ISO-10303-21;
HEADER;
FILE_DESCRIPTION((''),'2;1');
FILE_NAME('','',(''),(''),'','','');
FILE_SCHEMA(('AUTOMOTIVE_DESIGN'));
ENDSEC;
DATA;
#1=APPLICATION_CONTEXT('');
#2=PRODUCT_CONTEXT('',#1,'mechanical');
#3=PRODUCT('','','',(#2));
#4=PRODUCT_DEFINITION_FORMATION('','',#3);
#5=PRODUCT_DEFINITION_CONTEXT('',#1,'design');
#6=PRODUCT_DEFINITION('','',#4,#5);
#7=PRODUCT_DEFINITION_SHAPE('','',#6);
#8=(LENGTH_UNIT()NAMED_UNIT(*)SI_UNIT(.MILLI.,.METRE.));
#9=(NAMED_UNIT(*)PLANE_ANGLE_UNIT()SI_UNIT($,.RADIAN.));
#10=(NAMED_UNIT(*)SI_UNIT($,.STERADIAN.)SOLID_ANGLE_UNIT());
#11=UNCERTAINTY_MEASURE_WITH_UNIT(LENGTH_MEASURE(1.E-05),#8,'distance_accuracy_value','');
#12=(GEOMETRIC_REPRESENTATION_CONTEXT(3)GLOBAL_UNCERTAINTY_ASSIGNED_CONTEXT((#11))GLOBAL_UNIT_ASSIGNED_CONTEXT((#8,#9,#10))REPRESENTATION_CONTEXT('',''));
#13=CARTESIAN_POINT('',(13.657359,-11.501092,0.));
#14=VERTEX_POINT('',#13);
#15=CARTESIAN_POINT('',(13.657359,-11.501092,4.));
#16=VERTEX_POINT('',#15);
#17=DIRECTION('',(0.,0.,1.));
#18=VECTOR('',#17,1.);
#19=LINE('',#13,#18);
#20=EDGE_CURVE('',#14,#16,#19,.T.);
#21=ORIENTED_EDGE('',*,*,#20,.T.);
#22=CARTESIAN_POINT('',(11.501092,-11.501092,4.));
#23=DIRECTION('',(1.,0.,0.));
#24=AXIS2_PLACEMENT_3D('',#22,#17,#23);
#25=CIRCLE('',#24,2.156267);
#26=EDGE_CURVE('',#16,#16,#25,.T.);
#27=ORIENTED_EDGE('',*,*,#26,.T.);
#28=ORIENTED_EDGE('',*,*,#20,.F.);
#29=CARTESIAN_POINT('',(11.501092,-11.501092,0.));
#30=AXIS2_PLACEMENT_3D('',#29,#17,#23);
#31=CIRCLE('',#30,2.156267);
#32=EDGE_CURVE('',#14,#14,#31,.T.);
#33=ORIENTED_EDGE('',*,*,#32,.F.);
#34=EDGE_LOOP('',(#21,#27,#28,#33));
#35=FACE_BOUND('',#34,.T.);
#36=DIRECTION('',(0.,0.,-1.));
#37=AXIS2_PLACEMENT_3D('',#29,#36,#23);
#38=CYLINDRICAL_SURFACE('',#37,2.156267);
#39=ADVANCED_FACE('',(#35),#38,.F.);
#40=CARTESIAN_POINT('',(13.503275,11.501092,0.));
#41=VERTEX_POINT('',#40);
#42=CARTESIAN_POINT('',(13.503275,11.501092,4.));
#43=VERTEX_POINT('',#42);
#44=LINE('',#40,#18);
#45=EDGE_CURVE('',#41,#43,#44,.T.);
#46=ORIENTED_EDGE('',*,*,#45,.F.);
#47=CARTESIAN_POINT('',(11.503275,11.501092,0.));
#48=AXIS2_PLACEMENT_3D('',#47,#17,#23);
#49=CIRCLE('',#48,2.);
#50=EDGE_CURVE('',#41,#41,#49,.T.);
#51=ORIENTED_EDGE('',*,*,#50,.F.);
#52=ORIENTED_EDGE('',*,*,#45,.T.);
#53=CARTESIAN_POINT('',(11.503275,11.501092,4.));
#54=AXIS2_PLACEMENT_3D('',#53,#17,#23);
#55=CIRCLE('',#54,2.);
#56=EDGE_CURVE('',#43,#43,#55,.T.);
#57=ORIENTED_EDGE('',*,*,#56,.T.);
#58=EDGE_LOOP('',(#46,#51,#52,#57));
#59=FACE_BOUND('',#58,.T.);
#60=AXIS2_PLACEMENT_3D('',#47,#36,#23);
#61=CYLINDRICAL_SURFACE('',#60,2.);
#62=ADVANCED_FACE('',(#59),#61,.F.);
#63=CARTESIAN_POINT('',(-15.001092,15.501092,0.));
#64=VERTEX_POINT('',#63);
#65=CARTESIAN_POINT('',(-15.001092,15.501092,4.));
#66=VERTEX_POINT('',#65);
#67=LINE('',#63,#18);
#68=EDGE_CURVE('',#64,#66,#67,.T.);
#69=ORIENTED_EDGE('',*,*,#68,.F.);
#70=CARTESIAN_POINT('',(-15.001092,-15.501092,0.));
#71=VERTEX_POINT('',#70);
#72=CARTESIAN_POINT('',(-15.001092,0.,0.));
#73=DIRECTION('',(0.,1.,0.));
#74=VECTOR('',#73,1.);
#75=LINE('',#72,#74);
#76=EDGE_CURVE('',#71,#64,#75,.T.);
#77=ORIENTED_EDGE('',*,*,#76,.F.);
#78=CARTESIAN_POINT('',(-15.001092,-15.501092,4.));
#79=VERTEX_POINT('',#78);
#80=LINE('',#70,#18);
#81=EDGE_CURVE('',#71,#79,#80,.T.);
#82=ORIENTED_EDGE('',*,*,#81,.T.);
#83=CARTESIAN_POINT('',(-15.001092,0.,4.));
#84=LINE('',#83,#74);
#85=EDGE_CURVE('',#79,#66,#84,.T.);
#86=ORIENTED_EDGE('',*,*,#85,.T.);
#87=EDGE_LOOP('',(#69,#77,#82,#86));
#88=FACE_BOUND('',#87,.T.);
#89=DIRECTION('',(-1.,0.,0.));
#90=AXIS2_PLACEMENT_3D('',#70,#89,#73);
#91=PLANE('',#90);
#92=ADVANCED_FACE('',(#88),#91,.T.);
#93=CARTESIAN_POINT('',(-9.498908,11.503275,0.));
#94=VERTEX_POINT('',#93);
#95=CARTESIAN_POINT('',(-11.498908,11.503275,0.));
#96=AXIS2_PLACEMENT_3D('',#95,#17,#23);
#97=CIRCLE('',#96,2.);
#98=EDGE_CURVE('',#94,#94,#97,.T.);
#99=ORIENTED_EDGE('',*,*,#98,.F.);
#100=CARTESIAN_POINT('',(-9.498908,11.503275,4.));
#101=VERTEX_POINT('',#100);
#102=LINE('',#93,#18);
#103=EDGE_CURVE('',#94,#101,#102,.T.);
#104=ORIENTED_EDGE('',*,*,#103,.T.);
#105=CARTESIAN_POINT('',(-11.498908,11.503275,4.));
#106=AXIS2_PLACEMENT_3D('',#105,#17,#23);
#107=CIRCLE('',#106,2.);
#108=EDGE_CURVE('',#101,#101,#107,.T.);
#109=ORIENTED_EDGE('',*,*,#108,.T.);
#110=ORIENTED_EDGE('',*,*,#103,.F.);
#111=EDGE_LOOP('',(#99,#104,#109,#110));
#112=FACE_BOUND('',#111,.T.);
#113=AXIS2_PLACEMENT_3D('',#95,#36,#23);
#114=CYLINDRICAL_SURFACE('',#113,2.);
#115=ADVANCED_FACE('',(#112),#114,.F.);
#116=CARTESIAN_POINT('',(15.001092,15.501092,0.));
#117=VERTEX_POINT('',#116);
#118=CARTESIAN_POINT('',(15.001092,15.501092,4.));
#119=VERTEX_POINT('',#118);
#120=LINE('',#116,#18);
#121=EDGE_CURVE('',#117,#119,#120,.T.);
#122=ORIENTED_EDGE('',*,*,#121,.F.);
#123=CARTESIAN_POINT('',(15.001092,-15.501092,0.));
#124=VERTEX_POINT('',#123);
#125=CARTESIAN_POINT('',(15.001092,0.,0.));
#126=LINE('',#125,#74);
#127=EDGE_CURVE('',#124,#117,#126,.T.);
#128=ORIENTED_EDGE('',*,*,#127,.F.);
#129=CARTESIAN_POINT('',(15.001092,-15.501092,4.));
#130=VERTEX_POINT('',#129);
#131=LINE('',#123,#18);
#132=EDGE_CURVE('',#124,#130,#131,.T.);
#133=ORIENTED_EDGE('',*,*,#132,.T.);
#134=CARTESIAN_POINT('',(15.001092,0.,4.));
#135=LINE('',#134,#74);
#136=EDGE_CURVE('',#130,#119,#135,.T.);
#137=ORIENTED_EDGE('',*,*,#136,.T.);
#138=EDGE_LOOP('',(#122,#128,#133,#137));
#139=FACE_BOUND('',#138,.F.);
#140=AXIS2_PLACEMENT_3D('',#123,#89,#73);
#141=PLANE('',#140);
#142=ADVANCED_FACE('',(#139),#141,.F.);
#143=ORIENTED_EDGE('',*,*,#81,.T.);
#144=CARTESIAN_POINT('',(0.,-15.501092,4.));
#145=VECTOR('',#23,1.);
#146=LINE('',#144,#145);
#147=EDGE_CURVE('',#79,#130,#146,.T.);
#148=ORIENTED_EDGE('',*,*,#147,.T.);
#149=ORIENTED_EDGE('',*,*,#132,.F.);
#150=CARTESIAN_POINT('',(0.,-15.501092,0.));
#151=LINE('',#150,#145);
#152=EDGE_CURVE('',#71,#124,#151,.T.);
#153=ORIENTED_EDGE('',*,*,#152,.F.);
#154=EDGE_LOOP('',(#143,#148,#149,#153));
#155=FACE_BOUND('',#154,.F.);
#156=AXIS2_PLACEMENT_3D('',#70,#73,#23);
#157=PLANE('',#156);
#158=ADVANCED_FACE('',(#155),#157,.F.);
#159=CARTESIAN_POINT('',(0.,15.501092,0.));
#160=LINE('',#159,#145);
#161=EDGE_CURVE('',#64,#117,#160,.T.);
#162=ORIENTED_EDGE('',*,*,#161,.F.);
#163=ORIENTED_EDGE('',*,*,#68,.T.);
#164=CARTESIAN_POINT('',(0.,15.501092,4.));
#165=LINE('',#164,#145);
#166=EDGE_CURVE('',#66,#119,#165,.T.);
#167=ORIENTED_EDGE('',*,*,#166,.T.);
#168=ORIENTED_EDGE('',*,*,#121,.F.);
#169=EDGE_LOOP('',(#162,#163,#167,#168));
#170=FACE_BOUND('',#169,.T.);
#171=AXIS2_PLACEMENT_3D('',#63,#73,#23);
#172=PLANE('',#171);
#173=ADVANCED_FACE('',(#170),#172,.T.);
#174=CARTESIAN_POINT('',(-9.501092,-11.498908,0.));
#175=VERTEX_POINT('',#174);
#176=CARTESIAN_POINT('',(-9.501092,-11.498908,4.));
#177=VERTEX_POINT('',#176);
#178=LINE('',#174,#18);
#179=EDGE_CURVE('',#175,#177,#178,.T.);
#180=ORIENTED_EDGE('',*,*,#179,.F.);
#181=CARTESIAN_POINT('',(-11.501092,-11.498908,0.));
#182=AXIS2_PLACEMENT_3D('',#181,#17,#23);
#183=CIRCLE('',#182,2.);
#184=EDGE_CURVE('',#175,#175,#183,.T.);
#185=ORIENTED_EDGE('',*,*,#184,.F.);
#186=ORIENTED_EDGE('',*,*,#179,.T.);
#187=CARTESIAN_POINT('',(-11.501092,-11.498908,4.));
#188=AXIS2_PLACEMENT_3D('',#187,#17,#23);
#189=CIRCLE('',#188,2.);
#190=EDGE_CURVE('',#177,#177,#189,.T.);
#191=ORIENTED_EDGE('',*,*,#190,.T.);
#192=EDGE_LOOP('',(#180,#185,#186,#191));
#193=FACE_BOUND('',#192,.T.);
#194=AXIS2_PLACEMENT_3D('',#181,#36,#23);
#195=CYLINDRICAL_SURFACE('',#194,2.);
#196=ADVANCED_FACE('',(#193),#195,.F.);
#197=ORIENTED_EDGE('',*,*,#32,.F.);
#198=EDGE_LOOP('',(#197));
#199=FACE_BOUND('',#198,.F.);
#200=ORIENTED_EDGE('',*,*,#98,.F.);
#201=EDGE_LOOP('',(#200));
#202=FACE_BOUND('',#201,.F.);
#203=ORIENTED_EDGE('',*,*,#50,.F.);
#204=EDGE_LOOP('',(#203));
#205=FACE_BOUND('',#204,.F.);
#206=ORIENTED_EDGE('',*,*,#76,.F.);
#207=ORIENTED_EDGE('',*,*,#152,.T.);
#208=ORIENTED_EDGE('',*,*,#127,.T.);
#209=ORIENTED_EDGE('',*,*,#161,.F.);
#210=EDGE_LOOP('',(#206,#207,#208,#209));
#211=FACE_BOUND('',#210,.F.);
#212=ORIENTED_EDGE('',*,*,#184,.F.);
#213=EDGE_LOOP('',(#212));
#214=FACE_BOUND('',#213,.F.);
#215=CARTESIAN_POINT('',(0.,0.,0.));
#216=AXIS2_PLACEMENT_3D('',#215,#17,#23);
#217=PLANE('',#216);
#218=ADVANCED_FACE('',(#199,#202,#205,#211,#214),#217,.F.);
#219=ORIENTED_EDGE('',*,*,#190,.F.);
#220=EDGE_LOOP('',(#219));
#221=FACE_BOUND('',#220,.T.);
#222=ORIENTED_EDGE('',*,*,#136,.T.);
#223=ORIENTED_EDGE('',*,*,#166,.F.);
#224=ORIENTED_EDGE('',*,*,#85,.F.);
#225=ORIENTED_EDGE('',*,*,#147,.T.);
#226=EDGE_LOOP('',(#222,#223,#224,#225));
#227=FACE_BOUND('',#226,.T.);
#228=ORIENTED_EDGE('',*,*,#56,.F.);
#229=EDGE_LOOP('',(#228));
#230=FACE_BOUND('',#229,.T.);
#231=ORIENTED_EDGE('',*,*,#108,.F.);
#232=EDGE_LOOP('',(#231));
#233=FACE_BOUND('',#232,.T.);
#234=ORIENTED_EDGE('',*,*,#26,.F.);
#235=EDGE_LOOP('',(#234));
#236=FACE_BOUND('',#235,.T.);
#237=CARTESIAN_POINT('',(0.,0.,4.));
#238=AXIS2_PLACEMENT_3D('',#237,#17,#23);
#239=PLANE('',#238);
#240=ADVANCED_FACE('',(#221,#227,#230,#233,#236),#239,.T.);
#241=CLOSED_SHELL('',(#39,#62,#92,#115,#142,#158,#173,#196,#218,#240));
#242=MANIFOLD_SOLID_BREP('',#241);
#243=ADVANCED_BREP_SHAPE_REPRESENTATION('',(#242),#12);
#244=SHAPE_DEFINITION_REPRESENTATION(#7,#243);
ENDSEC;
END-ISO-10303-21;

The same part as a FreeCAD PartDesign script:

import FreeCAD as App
import Part
import Sketcher
from FreeCAD import Vector


def add_polygon(sketch, points):
    """Adds a closed chain of lines whose ends are joined by coincident constraints."""
    first, n = sketch.GeometryCount, len(points)
    for a, b in zip(points, points[1:] + points[:1]):
        sketch.addGeometry(Part.LineSegment(App.Vector(*a, 0), App.Vector(*b, 0)), False)
    for i in range(n):
        sketch.addConstraint(Sketcher.Constraint("Coincident", first + i, 2, first + (i + 1) % n, 1))

doc = App.newDocument("Part")
params = doc.addObject("Spreadsheet::Sheet", "Params")
for row, (alias, value) in enumerate([
    ("sketch1_diameter", "4 mm"),
    ("pad1_length", "4 mm"),
], start=1):
    params.set(f"A{row}", alias)
    params.set(f"B{row}", "=" + value)
    params.setAlias(f"B{row}", alias)

body = doc.addObject("PartDesign::Body", "Body")

sketch1 = body.newObject("Sketcher::SketchObject", "Sketch")
sketch1.AttachmentSupport = (doc.getObject("XY_Plane"), [""])
sketch1.MapMode = "FlatFace"
add_polygon(sketch1, [(-15.001092, 15.501092), (-15.001092, -15.501092), (15.001092, -15.501092), (15.001092, 15.501092)])
sketch1.addGeometry(Part.Circle(Vector(-11.501092, -11.498908, 0), Vector(0, 0, 1), 2), False)
sketch1.addGeometry(Part.Circle(Vector(11.501092, -11.501092, 0), Vector(0, 0, 1), 2.156267), False)
sketch1.addGeometry(Part.Circle(Vector(-11.498908, 11.503275, 0), Vector(0, 0, 1), 2), False)
sketch1.addGeometry(Part.Circle(Vector(11.503275, 11.501092, 0), Vector(0, 0, 1), 2), False)
sketch1.addConstraint([
    Sketcher.Constraint("Vertical", 0),
    Sketcher.Constraint("Horizontal", 1),
    Sketcher.Constraint("Vertical", 2),
    Sketcher.Constraint("Horizontal", 3),
    Sketcher.Constraint("Equal", 4, 6),
    Sketcher.Constraint("Equal", 6, 7),
    Sketcher.Constraint("Symmetric", 0, 2, 2, 2, -1, 1),
    Sketcher.Constraint("Diameter", 4, 4.0),
    Sketcher.Constraint("DistanceX", 6, 3, 5, 3, 23.0),
    Sketcher.Constraint("DistanceY", 4, 3, 7, 3, 23.0),
    Sketcher.Constraint("DistanceY", 0, 2, 5, 3, 4.0),
    Sketcher.Constraint("DistanceY", 7, 3, 2, 2, 4.0),
    Sketcher.Constraint("DistanceX", 0, 2, 4, 3, 3.5),
    Sketcher.Constraint("DistanceX", 5, 3, 1, 2, 3.5),
    Sketcher.Constraint("Diameter", 5, 4.312534),
    Sketcher.Constraint("DistanceX", 1, 1, 1, 2, 30.002183),
    Sketcher.Constraint("DistanceY", 0, 2, 0, 1, 31.002183),
    Sketcher.Constraint("DistanceY", -1, 1, 6, 3, 11.503275),
    Sketcher.Constraint("DistanceX", -1, 1, 7, 3, 11.503275),
])
sketch1.setExpression("Constraints[11]", "Params.sketch1_diameter")
pad1 = body.newObject("PartDesign::Pad", "Pad")
pad1.Profile = sketch1
pad1.setExpression("Length", "Params.pad1_length")

doc.recompute()
